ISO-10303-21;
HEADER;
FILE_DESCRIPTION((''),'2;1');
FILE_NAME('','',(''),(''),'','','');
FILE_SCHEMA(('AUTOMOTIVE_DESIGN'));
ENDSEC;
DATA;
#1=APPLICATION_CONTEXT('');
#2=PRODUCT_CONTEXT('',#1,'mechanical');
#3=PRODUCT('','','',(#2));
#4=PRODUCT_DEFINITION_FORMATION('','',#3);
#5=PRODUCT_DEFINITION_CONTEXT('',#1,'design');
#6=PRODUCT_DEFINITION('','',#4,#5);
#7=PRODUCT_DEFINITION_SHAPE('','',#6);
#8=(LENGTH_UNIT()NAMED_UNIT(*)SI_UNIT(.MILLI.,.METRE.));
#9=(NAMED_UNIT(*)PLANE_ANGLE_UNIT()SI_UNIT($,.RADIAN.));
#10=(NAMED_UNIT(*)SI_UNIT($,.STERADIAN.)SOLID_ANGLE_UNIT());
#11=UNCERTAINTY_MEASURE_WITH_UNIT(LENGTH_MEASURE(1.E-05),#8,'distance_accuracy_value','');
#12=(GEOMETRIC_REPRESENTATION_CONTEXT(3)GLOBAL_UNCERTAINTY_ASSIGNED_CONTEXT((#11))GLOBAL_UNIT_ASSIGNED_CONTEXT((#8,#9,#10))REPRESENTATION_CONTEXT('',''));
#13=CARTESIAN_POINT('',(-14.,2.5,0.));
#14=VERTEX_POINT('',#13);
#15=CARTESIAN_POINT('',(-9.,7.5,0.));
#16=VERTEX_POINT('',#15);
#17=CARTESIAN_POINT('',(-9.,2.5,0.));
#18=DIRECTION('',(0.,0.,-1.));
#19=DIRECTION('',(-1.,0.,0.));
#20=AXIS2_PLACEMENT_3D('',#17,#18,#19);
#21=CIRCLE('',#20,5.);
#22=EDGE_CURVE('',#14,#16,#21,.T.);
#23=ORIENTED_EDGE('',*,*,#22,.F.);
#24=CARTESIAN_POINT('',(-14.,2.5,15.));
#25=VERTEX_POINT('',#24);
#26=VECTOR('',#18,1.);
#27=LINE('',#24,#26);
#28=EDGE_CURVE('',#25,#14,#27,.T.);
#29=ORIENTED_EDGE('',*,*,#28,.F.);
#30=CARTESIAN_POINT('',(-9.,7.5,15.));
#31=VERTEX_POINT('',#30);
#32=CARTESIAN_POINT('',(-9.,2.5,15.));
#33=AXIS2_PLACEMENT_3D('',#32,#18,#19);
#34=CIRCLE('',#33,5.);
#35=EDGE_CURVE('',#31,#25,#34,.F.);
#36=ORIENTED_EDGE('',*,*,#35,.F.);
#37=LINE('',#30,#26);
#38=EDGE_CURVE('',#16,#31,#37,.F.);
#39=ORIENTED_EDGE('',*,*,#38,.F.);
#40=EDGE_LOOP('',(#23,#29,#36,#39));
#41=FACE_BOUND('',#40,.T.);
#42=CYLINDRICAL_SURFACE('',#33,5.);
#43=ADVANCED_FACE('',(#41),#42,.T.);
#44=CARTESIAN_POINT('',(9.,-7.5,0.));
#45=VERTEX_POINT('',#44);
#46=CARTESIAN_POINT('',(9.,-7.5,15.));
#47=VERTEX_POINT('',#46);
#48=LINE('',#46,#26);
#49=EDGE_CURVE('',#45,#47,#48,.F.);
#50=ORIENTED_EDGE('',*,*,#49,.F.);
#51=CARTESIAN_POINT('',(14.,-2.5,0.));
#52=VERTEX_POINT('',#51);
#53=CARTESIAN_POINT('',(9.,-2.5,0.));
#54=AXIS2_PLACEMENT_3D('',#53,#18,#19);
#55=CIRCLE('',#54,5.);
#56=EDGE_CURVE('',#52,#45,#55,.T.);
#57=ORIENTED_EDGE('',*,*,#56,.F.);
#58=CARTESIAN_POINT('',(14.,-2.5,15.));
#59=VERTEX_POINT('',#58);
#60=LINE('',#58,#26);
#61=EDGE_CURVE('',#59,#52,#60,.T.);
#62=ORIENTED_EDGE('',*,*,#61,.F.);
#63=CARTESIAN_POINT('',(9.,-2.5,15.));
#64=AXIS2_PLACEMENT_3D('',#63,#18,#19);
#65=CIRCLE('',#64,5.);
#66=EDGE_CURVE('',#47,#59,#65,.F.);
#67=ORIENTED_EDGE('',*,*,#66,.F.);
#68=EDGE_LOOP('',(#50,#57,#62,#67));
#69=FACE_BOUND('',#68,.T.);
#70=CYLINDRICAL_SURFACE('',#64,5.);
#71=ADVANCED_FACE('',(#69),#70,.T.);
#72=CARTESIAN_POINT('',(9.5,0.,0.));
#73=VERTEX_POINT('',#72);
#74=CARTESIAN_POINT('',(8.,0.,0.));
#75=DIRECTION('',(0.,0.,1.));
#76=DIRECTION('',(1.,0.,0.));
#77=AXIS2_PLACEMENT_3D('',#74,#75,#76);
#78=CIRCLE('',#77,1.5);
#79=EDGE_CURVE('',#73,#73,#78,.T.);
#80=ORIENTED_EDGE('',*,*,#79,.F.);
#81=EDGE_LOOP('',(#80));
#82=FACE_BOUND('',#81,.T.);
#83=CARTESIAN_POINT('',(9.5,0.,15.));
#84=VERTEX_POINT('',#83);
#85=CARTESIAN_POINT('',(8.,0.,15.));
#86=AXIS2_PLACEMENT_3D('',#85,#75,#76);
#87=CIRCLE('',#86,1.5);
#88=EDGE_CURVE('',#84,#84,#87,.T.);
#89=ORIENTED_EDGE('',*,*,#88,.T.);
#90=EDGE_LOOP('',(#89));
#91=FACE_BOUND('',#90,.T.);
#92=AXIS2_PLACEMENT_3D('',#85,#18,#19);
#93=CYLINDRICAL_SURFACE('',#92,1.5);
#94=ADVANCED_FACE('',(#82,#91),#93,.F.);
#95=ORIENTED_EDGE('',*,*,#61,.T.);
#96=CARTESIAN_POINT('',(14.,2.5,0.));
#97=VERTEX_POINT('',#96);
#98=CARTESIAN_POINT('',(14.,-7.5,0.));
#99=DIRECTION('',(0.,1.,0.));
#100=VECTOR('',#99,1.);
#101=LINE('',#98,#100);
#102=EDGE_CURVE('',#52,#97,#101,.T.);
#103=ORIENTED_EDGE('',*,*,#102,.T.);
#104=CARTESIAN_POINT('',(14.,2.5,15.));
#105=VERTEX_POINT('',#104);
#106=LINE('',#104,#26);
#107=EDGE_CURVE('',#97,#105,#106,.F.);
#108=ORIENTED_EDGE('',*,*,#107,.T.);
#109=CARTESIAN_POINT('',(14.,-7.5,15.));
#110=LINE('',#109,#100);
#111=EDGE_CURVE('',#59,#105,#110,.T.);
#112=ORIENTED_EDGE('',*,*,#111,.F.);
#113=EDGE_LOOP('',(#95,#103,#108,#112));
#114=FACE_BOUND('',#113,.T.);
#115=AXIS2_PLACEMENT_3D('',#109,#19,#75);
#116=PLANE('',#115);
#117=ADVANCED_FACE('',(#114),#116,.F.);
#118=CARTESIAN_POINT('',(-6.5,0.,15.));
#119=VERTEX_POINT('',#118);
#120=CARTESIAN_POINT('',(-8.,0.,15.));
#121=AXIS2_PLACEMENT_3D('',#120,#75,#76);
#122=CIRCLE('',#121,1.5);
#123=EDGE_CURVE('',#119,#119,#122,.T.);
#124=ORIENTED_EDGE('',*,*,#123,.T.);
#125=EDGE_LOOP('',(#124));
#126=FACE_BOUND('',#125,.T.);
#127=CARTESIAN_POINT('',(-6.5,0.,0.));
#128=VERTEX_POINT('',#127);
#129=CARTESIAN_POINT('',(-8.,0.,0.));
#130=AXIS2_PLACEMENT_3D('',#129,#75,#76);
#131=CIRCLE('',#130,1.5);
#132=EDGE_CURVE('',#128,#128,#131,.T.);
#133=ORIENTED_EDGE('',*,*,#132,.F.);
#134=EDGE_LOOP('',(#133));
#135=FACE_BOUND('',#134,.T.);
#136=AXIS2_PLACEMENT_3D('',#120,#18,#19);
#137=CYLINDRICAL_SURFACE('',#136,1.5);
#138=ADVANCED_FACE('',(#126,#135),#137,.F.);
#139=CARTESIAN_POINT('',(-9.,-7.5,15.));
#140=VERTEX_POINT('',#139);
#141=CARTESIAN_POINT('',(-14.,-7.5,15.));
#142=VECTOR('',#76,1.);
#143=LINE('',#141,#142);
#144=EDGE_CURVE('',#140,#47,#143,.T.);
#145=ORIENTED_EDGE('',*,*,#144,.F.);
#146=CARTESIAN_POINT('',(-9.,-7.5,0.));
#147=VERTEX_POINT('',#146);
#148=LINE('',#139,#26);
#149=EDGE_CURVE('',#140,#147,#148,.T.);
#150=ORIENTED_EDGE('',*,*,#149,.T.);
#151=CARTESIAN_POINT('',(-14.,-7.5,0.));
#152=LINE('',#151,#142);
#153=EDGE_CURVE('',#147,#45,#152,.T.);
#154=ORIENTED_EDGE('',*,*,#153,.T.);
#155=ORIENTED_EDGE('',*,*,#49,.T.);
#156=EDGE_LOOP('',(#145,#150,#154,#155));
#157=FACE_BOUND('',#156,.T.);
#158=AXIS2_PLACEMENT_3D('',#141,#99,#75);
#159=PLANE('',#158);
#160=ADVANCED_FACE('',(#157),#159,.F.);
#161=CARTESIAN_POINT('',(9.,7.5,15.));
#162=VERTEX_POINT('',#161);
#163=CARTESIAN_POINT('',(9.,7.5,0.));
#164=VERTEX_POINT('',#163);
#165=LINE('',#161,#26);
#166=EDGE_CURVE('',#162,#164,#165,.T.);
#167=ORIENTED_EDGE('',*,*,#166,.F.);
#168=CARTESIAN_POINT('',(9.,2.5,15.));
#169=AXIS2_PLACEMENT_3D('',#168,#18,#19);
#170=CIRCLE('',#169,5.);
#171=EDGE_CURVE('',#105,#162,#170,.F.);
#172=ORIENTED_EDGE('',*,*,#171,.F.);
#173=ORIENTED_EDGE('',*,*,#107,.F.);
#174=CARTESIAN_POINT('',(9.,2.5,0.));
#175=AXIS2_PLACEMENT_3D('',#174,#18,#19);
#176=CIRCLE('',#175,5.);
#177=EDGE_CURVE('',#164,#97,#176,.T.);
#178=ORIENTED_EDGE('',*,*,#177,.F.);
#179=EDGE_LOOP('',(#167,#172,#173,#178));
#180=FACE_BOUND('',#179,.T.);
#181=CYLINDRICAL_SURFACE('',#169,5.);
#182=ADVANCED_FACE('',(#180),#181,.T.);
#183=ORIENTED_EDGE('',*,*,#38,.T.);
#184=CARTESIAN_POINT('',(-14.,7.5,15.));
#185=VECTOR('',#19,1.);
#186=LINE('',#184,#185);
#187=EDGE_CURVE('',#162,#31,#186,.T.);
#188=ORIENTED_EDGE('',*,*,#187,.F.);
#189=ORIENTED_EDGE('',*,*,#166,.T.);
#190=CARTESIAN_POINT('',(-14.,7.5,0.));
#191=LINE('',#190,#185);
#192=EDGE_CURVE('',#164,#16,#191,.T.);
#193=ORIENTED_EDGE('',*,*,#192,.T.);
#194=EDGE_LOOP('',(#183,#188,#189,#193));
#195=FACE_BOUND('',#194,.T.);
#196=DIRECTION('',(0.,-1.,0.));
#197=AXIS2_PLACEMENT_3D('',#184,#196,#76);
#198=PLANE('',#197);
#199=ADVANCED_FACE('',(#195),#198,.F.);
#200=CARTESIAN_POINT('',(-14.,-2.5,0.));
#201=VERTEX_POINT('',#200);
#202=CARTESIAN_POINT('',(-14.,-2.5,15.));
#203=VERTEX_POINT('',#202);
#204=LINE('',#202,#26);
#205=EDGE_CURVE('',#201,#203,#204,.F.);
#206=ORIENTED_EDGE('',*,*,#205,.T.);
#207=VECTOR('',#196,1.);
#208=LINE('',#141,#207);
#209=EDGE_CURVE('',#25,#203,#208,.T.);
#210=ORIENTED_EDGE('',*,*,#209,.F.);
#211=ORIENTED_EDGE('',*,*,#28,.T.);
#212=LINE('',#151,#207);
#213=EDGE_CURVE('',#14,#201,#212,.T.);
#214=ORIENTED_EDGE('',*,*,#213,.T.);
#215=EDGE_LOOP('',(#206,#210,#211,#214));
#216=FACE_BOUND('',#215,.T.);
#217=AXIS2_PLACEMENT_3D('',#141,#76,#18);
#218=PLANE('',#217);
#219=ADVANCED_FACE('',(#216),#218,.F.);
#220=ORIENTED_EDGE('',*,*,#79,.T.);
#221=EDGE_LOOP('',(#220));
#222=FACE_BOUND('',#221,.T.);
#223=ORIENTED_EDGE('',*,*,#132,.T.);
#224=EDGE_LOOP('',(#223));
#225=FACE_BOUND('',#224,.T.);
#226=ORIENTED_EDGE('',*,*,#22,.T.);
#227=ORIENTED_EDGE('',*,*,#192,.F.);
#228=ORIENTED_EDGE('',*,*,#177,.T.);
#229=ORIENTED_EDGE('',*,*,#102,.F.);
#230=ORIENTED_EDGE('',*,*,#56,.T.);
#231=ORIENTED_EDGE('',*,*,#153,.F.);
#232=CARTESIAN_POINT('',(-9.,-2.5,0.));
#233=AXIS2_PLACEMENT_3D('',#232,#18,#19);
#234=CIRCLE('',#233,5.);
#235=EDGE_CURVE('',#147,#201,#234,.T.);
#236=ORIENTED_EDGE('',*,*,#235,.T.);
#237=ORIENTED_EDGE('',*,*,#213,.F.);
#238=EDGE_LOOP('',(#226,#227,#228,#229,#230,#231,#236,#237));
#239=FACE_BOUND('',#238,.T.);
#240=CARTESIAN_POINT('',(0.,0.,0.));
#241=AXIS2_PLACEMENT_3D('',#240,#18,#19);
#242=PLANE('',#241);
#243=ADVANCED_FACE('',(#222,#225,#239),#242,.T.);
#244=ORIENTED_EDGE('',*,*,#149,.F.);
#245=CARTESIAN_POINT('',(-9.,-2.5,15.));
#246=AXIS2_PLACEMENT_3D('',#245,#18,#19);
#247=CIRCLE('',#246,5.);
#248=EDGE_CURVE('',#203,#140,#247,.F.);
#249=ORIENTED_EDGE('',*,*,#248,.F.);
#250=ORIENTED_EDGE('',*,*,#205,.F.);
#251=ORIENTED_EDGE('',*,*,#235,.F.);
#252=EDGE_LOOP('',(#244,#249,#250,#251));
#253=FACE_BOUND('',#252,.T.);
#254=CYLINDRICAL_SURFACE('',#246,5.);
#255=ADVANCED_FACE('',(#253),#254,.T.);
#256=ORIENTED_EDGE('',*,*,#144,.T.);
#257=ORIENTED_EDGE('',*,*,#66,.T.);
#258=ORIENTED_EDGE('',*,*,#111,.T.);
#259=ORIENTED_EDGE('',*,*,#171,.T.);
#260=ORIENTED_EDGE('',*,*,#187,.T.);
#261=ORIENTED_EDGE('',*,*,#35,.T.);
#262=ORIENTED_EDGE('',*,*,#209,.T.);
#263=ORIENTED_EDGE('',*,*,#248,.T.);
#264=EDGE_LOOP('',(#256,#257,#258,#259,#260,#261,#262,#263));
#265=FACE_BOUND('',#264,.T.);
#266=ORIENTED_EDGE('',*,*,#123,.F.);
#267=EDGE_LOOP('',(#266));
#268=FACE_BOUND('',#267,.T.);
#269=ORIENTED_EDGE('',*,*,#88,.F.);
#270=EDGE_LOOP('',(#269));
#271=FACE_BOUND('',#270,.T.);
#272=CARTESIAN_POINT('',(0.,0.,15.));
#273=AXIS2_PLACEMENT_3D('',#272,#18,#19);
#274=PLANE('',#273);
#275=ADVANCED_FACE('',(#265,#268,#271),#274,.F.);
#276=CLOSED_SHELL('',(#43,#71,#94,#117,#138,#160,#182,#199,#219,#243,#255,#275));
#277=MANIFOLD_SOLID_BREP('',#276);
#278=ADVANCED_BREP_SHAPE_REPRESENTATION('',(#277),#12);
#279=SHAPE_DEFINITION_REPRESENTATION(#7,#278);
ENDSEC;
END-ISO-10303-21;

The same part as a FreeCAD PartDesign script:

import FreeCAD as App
import Part
import Sketcher

V = App.Vector


def edges_at(feature, points):
    """Names of the edges that pass closest to the given points."""
    edges = feature.Shape.Edges
    near = lambda p: min(range(len(edges)), key=lambda i: edges[i].distToShape(Part.Vertex(*p))[0])
    return sorted({f"Edge{near(p) + 1}" for p in points})

doc = App.newDocument("Part")
body = doc.addObject("PartDesign::Body", "Body")

sketch1 = doc.addObject("Sketcher::SketchObject", "Sketch")
body.addObject(sketch1)
sketch1.AttachmentSupport = (doc.XY_Plane, [""])
sketch1.MapMode = "FlatFace"
sketch1.addGeometry([
    Part.LineSegment(V(-14, 7.5, 0), V(-14, -7.5, 0)),
    Part.LineSegment(V(-14, -7.5, 0), V(14, -7.5, 0)),
    Part.LineSegment(V(14, -7.5, 0), V(14, 7.5, 0)),
    Part.LineSegment(V(14, 7.5, 0), V(-14, 7.5, 0)),
    Part.Circle(V(-8, 0, 0), V(0, 0, 1), 1.5),
    Part.Circle(V(8, 0, 0), V(0, 0, 1), 1.5),
], False)
sketch1.addConstraint([
    Sketcher.Constraint("Coincident", 0, 2, 1, 1),
    Sketcher.Constraint("Coincident", 1, 2, 2, 1),
    Sketcher.Constraint("Coincident", 2, 2, 3, 1),
    Sketcher.Constraint("Coincident", 3, 2, 0, 1),
    Sketcher.Constraint("Vertical", 0),
    Sketcher.Constraint("Horizontal", 1),
    Sketcher.Constraint("Vertical", 2),
    Sketcher.Constraint("Horizontal", 3),
    Sketcher.Constraint("Equal", 4, 5),
    Sketcher.Constraint("Symmetric", 4, 3, 5, 3, -1, 1),
    Sketcher.Constraint("Symmetric", 0, 2, 2, 2, -1, 1),
    Sketcher.Constraint("PointOnObject", 4, 3, -1),
    Sketcher.Constraint("Diameter", 4, 3.0),
    Sketcher.Constraint("DistanceX", 1, 1, 1, 2, 28.0),
    Sketcher.Constraint("DistanceY", 0, 2, 0, 1, 15.0),
    Sketcher.Constraint("DistanceX", 4, 3, -1, 1, 8.0),
])
pad1 = doc.addObject("PartDesign::Pad", "Pad")
body.addObject(pad1)
pad1.Profile = sketch1
pad1.Length = 15
doc.recompute()

fillet = doc.addObject("PartDesign::Fillet", "Fillet")
body.addObject(fillet)
fillet.Base = (pad1, edges_at(pad1, [
    (14, -7.5, 7.5),
    (-14, -7.5, 7.5),
    (-14, 7.5, 7.5),
    (14, 7.5, 7.5),
]))
fillet.Radius = 5

doc.recompute()
